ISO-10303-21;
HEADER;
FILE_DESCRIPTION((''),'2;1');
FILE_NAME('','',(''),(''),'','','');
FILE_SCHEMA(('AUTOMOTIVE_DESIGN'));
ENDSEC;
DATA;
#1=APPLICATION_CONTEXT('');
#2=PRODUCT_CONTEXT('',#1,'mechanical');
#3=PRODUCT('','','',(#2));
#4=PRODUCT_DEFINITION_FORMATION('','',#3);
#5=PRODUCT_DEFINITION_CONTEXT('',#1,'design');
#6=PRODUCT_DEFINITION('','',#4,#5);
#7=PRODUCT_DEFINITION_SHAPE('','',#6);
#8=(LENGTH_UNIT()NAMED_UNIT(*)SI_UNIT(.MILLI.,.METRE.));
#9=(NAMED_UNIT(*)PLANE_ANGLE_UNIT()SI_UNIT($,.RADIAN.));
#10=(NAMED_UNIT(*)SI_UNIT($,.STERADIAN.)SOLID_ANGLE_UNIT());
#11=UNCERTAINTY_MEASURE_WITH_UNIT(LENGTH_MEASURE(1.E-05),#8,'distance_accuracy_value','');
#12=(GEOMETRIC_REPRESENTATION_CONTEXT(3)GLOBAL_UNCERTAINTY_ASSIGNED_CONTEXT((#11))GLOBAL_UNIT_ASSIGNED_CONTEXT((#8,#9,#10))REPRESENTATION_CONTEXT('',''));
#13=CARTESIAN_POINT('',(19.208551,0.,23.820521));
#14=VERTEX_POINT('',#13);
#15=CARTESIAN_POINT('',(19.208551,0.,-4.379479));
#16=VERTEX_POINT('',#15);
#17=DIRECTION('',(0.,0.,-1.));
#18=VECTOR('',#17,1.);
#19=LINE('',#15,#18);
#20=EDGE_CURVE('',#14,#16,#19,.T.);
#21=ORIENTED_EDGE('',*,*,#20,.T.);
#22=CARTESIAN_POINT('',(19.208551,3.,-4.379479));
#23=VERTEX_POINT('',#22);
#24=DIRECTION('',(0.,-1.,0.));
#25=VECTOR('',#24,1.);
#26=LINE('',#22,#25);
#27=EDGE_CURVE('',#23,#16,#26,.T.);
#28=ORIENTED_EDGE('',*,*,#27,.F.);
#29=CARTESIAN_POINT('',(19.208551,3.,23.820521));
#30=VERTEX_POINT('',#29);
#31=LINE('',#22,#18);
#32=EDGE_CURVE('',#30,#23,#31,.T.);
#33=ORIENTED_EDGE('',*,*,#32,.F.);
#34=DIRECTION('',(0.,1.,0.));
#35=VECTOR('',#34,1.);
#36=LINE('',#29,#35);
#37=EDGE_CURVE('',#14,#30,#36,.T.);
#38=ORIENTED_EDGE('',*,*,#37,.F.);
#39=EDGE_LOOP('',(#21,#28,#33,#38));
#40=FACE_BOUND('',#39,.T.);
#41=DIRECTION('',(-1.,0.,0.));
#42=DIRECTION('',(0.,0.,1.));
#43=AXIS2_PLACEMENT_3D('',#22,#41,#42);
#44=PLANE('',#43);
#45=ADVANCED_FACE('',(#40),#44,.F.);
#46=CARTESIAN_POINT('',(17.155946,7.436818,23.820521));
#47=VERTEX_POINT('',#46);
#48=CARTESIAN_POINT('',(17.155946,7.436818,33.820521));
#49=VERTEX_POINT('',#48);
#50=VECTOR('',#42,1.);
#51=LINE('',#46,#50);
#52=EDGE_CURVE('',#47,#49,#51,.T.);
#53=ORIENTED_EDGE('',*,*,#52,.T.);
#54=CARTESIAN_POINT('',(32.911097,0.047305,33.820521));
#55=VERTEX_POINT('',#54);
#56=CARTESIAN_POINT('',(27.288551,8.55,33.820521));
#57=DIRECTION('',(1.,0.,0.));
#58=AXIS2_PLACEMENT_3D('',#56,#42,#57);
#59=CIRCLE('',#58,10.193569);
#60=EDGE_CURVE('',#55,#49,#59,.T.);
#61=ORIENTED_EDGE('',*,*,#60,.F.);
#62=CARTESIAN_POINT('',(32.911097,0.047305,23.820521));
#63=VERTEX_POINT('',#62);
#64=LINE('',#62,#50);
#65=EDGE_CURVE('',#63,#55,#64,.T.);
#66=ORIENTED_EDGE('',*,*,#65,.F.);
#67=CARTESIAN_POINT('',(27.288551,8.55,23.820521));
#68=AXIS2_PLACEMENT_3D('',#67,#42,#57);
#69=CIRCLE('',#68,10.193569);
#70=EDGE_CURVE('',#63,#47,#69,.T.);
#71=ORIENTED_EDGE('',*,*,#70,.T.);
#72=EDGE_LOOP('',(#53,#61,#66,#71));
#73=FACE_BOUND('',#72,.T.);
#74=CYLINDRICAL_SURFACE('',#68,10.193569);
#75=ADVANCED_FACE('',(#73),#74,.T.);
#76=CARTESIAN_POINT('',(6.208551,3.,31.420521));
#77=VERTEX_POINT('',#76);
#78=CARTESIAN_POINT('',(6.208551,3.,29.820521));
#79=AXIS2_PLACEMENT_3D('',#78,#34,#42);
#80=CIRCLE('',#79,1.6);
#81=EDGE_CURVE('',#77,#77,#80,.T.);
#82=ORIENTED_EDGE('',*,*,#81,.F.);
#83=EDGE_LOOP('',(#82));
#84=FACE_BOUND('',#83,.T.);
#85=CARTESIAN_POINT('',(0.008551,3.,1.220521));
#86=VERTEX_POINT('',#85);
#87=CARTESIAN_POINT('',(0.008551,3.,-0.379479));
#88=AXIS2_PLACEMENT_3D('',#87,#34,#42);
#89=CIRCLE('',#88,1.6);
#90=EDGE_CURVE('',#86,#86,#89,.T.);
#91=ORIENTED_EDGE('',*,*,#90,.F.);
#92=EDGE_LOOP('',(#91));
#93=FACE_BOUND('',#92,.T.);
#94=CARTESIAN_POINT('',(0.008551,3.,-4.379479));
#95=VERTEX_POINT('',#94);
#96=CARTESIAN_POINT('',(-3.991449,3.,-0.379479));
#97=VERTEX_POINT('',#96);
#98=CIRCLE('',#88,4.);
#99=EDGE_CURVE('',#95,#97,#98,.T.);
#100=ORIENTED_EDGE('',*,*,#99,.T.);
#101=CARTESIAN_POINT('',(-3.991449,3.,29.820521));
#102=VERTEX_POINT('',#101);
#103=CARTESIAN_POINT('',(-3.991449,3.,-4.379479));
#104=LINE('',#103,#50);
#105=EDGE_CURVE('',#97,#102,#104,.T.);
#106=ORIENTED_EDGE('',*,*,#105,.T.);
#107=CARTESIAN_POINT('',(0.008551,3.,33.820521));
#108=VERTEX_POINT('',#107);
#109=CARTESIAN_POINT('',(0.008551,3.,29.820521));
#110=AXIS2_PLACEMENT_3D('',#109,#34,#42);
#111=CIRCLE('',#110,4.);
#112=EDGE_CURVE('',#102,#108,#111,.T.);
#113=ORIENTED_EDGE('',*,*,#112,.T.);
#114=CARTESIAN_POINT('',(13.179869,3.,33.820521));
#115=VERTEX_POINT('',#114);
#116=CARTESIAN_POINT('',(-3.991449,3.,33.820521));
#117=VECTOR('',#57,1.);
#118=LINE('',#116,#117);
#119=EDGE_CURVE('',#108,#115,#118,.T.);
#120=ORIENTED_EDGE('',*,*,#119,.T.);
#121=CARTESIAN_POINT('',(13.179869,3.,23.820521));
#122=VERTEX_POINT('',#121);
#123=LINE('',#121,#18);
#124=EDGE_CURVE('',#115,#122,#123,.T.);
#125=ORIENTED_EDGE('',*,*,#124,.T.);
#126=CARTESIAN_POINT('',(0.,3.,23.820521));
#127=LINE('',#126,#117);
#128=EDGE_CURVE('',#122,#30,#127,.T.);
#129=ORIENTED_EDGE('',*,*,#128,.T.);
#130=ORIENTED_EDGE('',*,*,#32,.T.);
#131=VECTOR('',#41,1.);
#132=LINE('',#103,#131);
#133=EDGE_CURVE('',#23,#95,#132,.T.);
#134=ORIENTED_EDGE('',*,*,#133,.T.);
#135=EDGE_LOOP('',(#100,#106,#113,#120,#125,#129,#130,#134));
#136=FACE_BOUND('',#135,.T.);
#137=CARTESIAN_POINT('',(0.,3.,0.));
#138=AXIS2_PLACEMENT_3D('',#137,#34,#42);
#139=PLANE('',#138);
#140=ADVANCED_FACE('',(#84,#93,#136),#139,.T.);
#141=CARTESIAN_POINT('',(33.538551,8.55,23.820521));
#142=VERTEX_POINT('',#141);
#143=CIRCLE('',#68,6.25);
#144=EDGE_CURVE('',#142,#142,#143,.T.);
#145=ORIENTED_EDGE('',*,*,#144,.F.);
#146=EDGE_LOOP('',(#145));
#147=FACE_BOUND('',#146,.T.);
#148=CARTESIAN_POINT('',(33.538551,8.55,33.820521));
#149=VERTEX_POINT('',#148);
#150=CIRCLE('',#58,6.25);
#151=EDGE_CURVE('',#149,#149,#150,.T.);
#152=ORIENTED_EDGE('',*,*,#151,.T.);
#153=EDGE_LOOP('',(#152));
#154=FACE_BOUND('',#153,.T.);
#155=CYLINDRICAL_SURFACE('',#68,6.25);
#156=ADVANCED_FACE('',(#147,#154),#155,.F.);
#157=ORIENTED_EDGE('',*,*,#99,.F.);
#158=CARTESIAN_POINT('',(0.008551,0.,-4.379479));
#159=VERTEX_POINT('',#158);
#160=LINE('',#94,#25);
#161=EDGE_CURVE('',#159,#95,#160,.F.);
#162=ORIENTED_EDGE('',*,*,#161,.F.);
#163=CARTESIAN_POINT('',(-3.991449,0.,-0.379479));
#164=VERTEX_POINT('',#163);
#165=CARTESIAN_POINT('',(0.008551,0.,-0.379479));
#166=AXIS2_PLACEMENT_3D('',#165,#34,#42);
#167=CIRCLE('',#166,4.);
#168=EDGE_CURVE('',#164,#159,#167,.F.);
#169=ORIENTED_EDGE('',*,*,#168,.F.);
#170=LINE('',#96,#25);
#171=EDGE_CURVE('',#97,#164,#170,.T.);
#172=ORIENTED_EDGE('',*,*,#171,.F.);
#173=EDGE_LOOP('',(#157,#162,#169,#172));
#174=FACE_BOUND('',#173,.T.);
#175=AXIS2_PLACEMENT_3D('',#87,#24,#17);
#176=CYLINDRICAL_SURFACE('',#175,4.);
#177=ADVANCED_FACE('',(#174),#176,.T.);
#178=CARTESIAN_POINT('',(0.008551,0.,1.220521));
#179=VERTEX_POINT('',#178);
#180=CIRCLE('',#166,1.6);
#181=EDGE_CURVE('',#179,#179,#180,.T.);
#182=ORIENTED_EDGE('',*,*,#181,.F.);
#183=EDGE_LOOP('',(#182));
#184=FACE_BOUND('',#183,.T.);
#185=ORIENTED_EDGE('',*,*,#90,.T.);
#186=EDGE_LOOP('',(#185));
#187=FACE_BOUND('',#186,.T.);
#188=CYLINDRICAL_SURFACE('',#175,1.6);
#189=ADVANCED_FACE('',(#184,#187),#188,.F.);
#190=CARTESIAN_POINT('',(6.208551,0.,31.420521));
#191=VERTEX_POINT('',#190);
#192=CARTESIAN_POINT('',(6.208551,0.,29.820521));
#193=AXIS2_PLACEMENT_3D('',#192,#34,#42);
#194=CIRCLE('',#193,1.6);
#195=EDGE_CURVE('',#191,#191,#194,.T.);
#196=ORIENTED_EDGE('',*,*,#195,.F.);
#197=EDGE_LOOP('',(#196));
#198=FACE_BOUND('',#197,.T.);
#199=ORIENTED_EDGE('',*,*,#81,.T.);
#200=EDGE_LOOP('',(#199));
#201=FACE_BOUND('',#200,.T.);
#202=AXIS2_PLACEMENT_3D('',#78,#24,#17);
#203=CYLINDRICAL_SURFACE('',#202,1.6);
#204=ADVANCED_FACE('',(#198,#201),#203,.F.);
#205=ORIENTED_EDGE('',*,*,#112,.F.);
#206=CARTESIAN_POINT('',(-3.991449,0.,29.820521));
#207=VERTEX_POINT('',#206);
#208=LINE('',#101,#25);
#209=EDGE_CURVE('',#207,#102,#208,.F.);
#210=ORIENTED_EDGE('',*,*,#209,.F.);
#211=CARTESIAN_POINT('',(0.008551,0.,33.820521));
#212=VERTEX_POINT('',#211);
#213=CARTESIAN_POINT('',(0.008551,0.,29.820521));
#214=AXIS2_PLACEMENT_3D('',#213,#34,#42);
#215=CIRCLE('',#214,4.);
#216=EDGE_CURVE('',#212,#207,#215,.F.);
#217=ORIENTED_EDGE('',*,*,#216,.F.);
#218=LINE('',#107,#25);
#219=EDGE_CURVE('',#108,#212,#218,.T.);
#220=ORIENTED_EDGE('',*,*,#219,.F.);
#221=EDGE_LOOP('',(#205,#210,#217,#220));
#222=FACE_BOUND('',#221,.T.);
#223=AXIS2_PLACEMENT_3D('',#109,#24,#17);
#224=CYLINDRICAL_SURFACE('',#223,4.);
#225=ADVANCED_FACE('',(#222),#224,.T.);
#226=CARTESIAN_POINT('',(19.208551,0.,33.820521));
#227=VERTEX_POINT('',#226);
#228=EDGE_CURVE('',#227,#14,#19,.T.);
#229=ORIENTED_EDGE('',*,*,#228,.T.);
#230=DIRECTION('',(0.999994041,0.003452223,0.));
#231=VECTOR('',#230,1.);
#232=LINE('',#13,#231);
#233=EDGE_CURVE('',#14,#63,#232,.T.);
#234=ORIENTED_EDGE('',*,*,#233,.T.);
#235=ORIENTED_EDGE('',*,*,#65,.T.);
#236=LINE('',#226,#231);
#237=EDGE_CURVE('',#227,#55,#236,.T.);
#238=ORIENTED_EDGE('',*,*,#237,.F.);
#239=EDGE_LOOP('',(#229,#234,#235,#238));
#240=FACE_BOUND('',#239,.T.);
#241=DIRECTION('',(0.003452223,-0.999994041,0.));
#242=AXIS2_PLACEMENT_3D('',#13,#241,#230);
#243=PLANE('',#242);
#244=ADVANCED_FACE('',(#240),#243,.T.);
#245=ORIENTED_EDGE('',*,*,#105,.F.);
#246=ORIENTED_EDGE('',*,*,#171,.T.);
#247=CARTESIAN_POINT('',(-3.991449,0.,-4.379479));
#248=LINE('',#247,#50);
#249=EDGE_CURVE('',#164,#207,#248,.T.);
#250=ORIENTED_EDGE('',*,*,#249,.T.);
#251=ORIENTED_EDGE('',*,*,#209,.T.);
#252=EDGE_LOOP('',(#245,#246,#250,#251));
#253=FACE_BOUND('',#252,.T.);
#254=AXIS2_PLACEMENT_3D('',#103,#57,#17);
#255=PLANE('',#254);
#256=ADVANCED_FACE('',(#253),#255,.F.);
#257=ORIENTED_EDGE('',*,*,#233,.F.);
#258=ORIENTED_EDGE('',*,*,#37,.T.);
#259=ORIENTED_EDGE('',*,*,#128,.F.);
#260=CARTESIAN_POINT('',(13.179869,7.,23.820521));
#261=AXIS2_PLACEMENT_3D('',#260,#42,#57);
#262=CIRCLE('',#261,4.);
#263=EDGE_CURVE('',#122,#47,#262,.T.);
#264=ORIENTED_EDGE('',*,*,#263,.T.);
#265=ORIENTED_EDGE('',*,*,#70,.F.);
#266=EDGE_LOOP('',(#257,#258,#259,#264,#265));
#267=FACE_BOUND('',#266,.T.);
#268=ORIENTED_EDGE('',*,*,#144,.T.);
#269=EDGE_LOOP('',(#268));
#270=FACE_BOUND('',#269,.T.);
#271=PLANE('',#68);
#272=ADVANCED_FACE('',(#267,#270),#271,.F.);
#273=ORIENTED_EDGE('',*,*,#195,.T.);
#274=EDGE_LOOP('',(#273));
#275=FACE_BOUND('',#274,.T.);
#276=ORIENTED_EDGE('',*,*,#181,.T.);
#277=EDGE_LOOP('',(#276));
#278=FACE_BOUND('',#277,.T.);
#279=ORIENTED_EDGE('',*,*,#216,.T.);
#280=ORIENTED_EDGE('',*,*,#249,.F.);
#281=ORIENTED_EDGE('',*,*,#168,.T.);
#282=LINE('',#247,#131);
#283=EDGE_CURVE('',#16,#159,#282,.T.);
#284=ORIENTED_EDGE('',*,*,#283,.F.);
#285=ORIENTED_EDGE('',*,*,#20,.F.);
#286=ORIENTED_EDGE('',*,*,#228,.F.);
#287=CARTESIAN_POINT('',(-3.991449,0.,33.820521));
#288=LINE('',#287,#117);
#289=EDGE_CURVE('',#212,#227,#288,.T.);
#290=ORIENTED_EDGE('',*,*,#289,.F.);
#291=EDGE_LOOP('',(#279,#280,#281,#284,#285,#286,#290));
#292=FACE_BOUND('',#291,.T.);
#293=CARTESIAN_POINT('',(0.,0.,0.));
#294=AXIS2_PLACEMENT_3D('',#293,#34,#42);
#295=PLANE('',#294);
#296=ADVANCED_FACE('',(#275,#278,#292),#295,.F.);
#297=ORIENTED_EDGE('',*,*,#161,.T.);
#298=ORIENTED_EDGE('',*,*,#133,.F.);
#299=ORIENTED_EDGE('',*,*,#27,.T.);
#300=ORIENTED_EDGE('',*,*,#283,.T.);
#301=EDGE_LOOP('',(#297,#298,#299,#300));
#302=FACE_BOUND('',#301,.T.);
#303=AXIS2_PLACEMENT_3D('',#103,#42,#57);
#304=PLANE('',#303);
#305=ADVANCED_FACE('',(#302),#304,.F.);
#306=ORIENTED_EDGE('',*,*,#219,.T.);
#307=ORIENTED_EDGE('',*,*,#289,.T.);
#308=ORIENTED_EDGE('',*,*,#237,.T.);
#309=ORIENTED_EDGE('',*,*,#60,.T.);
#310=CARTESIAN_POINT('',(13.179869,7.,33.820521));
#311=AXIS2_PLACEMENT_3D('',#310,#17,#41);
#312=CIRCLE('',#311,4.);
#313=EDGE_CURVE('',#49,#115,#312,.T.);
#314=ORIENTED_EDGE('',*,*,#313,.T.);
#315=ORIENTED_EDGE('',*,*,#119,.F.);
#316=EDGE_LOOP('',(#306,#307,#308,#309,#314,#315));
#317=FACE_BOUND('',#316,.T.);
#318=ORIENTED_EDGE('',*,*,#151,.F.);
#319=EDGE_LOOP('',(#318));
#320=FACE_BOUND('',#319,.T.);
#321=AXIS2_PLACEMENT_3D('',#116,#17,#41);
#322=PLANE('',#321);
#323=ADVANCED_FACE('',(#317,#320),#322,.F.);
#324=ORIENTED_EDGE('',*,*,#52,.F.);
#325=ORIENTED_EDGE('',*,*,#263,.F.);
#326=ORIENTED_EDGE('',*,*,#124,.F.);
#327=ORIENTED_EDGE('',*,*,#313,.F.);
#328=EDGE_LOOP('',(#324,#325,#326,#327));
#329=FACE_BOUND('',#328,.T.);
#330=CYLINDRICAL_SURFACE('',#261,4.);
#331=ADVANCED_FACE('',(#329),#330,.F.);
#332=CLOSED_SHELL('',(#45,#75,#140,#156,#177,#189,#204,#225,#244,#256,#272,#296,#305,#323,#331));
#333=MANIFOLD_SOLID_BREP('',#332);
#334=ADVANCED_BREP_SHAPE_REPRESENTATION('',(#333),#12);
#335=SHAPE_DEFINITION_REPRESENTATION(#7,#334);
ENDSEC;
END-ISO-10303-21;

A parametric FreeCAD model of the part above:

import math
import FreeCAD as App
import Part
import Sketcher
from FreeCAD import Vector


def edges_at(feature, points):
    """Names of the edges that pass closest to the given points."""
    edges = feature.Shape.Edges
    near = lambda p: min(range(len(edges)), key=lambda i: edges[i].distToShape(Part.Vertex(*p))[0])
    return sorted({f"Edge{near(p) + 1}" for p in points})

doc = App.newDocument("Part")
params = doc.addObject("Spreadsheet::Sheet", "Params")
for row, (alias, value) in enumerate([
    ("sketch1_diameter", "3.2 mm"),
    ("sketch1_width", "23.2 mm"),
    ("sketch1_height", "38.2 mm"),
    ("pad1_length", "3 mm"),
    ("fillet_radius", "4 mm"),
    ("sketch2_diameter", "12.5 mm"),
    ("sketch2_width", "8.08 mm"),
    ("pad2_length", "10 mm"),
    ("fillet2_radius", "4 mm"),
], start=1):
    params.set(f"A{row}", alias)
    params.set(f"B{row}", "=" + value)
    params.setAlias(f"B{row}", alias)

body = doc.addObject("PartDesign::Body", "Body")

sketch1 = body.newObject("Sketcher::SketchObject", "Sketch")
sketch1.AttachmentSupport = (doc.getObject("XZ_Plane"), [""])
sketch1.MapMode = "FlatFace"
sketch1.addGeometry([
    Part.LineSegment(Vector(-4, -4.4, 0), Vector(-4, 33.8, 0)),
    Part.LineSegment(Vector(-4, 33.8, 0), Vector(19.2, 33.8, 0)),
    Part.LineSegment(Vector(19.2, 33.8, 0), Vector(19.2, -4.4, 0)),
    Part.LineSegment(Vector(19.2, -4.4, 0), Vector(-4, -4.4, 0)),
    Part.Circle(Vector(6.2, 29.8, 0), Vector(0, 0, 1), 1.6),
    Part.Circle(Vector(0, -0.4, 0), Vector(0, 0, 1), 1.6),
], False)
sketch1.addConstraint([
    Sketcher.Constraint("Coincident", 0, 2, 1, 1),
    Sketcher.Constraint("Coincident", 1, 2, 2, 1),
    Sketcher.Constraint("Coincident", 2, 2, 3, 1),
    Sketcher.Constraint("Coincident", 3, 2, 0, 1),
    Sketcher.Constraint("Vertical", 0),
    Sketcher.Constraint("Horizontal", 1),
    Sketcher.Constraint("Vertical", 2),
    Sketcher.Constraint("Horizontal", 3),
    Sketcher.Constraint("Equal", 4, 5),
    Sketcher.Constraint("Diameter", 4, 3.2),
    Sketcher.Constraint("DistanceX", 1, 1, 1, 2, 23.2),
    Sketcher.Constraint("DistanceY", 0, 1, 0, 2, 38.2),
    Sketcher.Constraint("DistanceY", 4, 3, 0, 2, 4.0),
    Sketcher.Constraint("DistanceX", 0, 2, 5, 3, 4.0),
    Sketcher.Constraint("DistanceX", 4, 3, 1, 2, 13.0),
    Sketcher.Constraint("DistanceY", 2, 2, 5, 3, 4.0),
    Sketcher.Constraint("DistanceX", -1, 1, 4, 3, 6.208551),
    Sketcher.Constraint("DistanceY", -1, 1, 4, 3, 29.820521),
])
sketch1.setExpression("Constraints[9]", "Params.sketch1_diameter")
sketch1.setExpression("Constraints[10]", "Params.sketch1_width")
sketch1.setExpression("Constraints[11]", "Params.sketch1_height")
pad1 = body.newObject("PartDesign::Pad", "Pad")
pad1.Profile = sketch1
pad1.setExpression("Length", "Params.pad1_length")
pad1.Reversed = True
doc.recompute()

fillet = body.newObject("PartDesign::Fillet", "Fillet")
fillet.Base = (pad1, edges_at(pad1, [(-3.991, 1.5, -4.379), (-3.991, 1.5, 33.821)]))
fillet.setExpression("Radius", "Params.fillet_radius")

sketch2 = body.newObject("Sketcher::SketchObject", "Sketch001")
sketch2.AttachmentSupport = (doc.getObject("XY_Plane"), [""])
sketch2.MapMode = "FlatFace"
sketch2.AttachmentOffset = App.Placement(Vector(0, 0, 33.820521), App.Rotation())
sketch2.addGeometry([
    Part.LineSegment(Vector(19.2, 0, 0), Vector(32.9, 0, 0)),
    Part.ArcOfCircle(Part.Circle(Vector(27.3, 8.6, 0), Vector(0, 0, 1), 10.2), math.radians(-57), math.radians(218)),
    Part.LineSegment(Vector(19.2, 2.3, 0), Vector(19.2, 0, 0)),
    Part.Circle(Vector(27.3, 8.6, 0), Vector(0, 0, 1), 6.2),
], False)
sketch2.addConstraint([
    Sketcher.Constraint("Coincident", 0, 2, 1, 1),
    Sketcher.Constraint("Coincident", 1, 2, 2, 1),
    Sketcher.Constraint("Coincident", 2, 2, 0, 1),
    Sketcher.Constraint("Vertical", 2),
    Sketcher.Constraint("Coincident", 3, 3, 1, 3),
    Sketcher.Constraint("PointOnObject", 2, 2, -1),
    Sketcher.Constraint("Diameter", 3, 12.5),
    Sketcher.Constraint("DistanceY", -1, 1, 1, 3, 8.55),
    Sketcher.Constraint("Radius", 1, 10.193569),
    Sketcher.Constraint("DistanceX", 1, 2, 1, 3, 8.08),
    Sketcher.Constraint("DistanceY", 0, 2, 1, 2, 2.287999),
    Sketcher.Constraint("DistanceX", -1, 1, 1, 3, 27.288551),
])
sketch2.setExpression("Constraints[6]", "Params.sketch2_diameter")
sketch2.setExpression("Constraints[9]", "Params.sketch2_width")
pad2 = body.newObject("PartDesign::Pad", "Pad001")
pad2.Profile = sketch2
pad2.setExpression("Length", "Params.pad2_length")
pad2.Reversed = True
doc.recompute()

fillet2 = body.newObject("PartDesign::Fillet", "Fillet001")
fillet2.Base = (pad2, edges_at(pad2, [(18.738, 3, 28.821)]))
fillet2.setExpression("Radius", "Params.fillet2_radius")

doc.recompute()
